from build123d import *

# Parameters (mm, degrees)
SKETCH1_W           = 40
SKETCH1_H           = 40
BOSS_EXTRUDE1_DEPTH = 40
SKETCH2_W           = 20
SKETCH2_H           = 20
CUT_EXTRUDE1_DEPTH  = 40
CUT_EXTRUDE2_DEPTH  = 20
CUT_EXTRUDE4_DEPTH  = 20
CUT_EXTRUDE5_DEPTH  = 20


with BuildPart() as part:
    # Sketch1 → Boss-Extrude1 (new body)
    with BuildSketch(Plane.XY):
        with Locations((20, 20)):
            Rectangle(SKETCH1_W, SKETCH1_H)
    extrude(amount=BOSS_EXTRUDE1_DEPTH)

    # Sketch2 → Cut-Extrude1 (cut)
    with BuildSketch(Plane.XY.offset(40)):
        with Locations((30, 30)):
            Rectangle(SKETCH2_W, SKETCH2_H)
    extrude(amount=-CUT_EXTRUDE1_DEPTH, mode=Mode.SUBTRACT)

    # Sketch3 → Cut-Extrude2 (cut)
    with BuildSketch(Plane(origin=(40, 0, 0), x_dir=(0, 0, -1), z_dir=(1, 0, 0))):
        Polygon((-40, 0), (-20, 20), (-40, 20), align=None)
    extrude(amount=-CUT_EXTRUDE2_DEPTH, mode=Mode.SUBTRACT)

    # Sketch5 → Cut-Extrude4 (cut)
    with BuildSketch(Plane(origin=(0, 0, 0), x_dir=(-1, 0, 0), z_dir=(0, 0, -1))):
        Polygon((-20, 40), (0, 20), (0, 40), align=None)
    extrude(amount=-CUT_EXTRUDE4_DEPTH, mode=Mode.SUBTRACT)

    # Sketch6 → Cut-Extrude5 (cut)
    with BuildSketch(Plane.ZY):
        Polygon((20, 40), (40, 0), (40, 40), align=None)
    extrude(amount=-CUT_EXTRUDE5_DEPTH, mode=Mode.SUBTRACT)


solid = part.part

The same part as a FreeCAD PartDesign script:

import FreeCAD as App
import Part
import Sketcher
from FreeCAD import Vector


def add_polygon(sketch, points):
    """Adds a closed chain of lines whose ends are joined by coincident constraints."""
    first, n = sketch.GeometryCount, len(points)
    for a, b in zip(points, points[1:] + points[:1]):
        sketch.addGeometry(Part.LineSegment(App.Vector(*a, 0), App.Vector(*b, 0)), False)
    for i in range(n):
        sketch.addConstraint(Sketcher.Constraint("Coincident", first + i, 2, first + (i + 1) % n, 1))

doc = App.newDocument("Part")
params = doc.addObject("Spreadsheet::Sheet", "Params")
for row, (alias, value) in enumerate([
    ("sketch1_width", "40 mm"),
    ("pad1_length", "40 mm"),
    ("sketch2_width", "20 mm"),
    ("pocket1_length", "40 mm"),
    ("sketch3_width", "20 mm"),
    ("pocket2_length", "20 mm"),
    ("sketch4_width", "20 mm"),
    ("pocket3_length", "20 mm"),
    ("sketch5_width", "40 mm"),
    ("sketch5_height", "20 mm"),
    ("pocket4_length", "20 mm"),
], start=1):
    params.set(f"A{row}", alias)
    params.set(f"B{row}", "=" + value)
    params.setAlias(f"B{row}", alias)

body = doc.addObject("PartDesign::Body", "Body")

# Sketch on XY plane
sketch1 = body.newObject("Sketcher::SketchObject", "Sketch")
sketch1.AttachmentSupport = (doc.getObject("XY_Plane"), [""])
sketch1.MapMode = "FlatFace"
add_polygon(sketch1, [(0, 40), (0, 0), (40, 0), (40, 40)])  # lines 0-3
sketch1.addConstraint([
    Sketcher.Constraint("Vertical", 0),
    Sketcher.Constraint("Horizontal", 1),
    Sketcher.Constraint("Vertical", 2),
    Sketcher.Constraint("Horizontal", 3),
    Sketcher.Constraint("Coincident", 0, 2, -1, 1),
    Sketcher.Constraint("Equal", 3, 0),
    Sketcher.Constraint("DistanceX", 1, 1, 1, 2, 40.0),
])
sketch1.setExpression("Constraints[10]", "Params.sketch1_width")
pad1 = body.newObject("PartDesign::Pad", "Pad")
pad1.Profile = sketch1
pad1.setExpression("Length", "Params.pad1_length")

# Sketch on XY plane
sketch2 = body.newObject("Sketcher::SketchObject", "Sketch001")
sketch2.AttachmentSupport = (doc.getObject("XY_Plane"), [""])
sketch2.MapMode = "FlatFace"
sketch2.AttachmentOffset = App.Placement(Vector(0, 0, 40), App.Rotation())
add_polygon(sketch2, [(20, 40), (20, 20), (40, 20), (40, 40)])  # lines 0-3
sketch2.addConstraint([
    Sketcher.Constraint("Vertical", 0),
    Sketcher.Constraint("Horizontal", 1),
    Sketcher.Constraint("Vertical", 2),
    Sketcher.Constraint("Horizontal", 3),
    Sketcher.Constraint("Equal", 3, 0),
    Sketcher.Constraint("DistanceX", 1, 1, 1, 2, 20.0),
    Sketcher.Constraint("DistanceX", -1, 1, 0, 2, 20.0),
    Sketcher.Constraint("DistanceY", -1, 1, 0, 2, 20.0),
])
sketch2.setExpression("Constraints[9]", "Params.sketch2_width")
pocket1 = body.newObject("PartDesign::Pocket", "Pocket")
pocket1.Profile = sketch2
pocket1.setExpression("Length", "Params.pocket1_length")

# Sketch on YZ plane
sketch3 = body.newObject("Sketcher::SketchObject", "Sketch002")
sketch3.AttachmentSupport = (doc.getObject("YZ_Plane"), [""])
sketch3.MapMode = "FlatFace"
sketch3.AttachmentOffset = App.Placement(Vector(0, 0, 40), App.Rotation())
add_polygon(sketch3, [(0, 40), (20, 20), (20, 40)])  # lines 0-2
sketch3.addConstraint([
    Sketcher.Constraint("Vertical", 1),
    Sketcher.Constraint("Horizontal", 2),
    Sketcher.Constraint("PointOnObject", 2, 2, -2),
    Sketcher.Constraint("Equal", 2, 1),
    Sketcher.Constraint("DistanceX", 2, 2, 2, 1, 20.0),
    Sketcher.Constraint("DistanceY", -1, 1, 0, 2, 20.0),
])
sketch3.setExpression("Constraints[7]", "Params.sketch3_width")
pocket2 = body.newObject("PartDesign::Pocket", "Pocket001")
pocket2.Profile = sketch3
pocket2.setExpression("Length", "Params.pocket2_length")

# Sketch on XY plane
sketch4 = body.newObject("Sketcher::SketchObject", "Sketch003")
sketch4.AttachmentSupport = (doc.getObject("XY_Plane"), [""])
sketch4.MapMode = "FlatFace"
add_polygon(sketch4, [(20, 40), (0, 20), (0, 40)])  # lines 0-2
sketch4.addConstraint([
    Sketcher.Constraint("Vertical", 1),
    Sketcher.Constraint("Horizontal", 2),
    Sketcher.Constraint("PointOnObject", 0, 2, -2),
    Sketcher.Constraint("Equal", 2, 1),
    Sketcher.Constraint("DistanceX", 2, 1, 2, 2, 20.0),
    Sketcher.Constraint("DistanceY", -1, 1, 0, 2, 20.0),
])
sketch4.setExpression("Constraints[7]", "Params.sketch4_width")
pocket3 = body.newObject("PartDesign::Pocket", "Pocket002")
pocket3.Profile = sketch4
pocket3.setExpression("Length", "Params.pocket3_length")
pocket3.Reversed = True

# Sketch on YZ plane
sketch5 = body.newObject("Sketcher::SketchObject", "Sketch004")
sketch5.AttachmentSupport = (doc.getObject("YZ_Plane"), [""])
sketch5.MapMode = "FlatFace"
add_polygon(sketch5, [(40, 20), (0, 40), (40, 40)])  # lines 0-2
sketch5.addConstraint([
    Sketcher.Constraint("Horizontal", 1),
    Sketcher.Constraint("Vertical", 2),
    Sketcher.Constraint("PointOnObject", 0, 2, -2),
    Sketcher.Constraint("DistanceX", 1, 1, 1, 2, 40.0),
    Sketcher.Constraint("DistanceY", 2, 2, 2, 1, 20.0),
    Sketcher.Constraint("DistanceY", -1, 1, 0, 2, 40.0),
])
sketch5.setExpression("Constraints[6]", "Params.sketch5_width")
sketch5.setExpression("Constraints[7]", "Params.sketch5_height")
pocket4 = body.newObject("PartDesign::Pocket", "Pocket003")
pocket4.Profile = sketch5
pocket4.setExpression("Length", "Params.pocket4_length")
pocket4.Reversed = True

doc.recompute()
